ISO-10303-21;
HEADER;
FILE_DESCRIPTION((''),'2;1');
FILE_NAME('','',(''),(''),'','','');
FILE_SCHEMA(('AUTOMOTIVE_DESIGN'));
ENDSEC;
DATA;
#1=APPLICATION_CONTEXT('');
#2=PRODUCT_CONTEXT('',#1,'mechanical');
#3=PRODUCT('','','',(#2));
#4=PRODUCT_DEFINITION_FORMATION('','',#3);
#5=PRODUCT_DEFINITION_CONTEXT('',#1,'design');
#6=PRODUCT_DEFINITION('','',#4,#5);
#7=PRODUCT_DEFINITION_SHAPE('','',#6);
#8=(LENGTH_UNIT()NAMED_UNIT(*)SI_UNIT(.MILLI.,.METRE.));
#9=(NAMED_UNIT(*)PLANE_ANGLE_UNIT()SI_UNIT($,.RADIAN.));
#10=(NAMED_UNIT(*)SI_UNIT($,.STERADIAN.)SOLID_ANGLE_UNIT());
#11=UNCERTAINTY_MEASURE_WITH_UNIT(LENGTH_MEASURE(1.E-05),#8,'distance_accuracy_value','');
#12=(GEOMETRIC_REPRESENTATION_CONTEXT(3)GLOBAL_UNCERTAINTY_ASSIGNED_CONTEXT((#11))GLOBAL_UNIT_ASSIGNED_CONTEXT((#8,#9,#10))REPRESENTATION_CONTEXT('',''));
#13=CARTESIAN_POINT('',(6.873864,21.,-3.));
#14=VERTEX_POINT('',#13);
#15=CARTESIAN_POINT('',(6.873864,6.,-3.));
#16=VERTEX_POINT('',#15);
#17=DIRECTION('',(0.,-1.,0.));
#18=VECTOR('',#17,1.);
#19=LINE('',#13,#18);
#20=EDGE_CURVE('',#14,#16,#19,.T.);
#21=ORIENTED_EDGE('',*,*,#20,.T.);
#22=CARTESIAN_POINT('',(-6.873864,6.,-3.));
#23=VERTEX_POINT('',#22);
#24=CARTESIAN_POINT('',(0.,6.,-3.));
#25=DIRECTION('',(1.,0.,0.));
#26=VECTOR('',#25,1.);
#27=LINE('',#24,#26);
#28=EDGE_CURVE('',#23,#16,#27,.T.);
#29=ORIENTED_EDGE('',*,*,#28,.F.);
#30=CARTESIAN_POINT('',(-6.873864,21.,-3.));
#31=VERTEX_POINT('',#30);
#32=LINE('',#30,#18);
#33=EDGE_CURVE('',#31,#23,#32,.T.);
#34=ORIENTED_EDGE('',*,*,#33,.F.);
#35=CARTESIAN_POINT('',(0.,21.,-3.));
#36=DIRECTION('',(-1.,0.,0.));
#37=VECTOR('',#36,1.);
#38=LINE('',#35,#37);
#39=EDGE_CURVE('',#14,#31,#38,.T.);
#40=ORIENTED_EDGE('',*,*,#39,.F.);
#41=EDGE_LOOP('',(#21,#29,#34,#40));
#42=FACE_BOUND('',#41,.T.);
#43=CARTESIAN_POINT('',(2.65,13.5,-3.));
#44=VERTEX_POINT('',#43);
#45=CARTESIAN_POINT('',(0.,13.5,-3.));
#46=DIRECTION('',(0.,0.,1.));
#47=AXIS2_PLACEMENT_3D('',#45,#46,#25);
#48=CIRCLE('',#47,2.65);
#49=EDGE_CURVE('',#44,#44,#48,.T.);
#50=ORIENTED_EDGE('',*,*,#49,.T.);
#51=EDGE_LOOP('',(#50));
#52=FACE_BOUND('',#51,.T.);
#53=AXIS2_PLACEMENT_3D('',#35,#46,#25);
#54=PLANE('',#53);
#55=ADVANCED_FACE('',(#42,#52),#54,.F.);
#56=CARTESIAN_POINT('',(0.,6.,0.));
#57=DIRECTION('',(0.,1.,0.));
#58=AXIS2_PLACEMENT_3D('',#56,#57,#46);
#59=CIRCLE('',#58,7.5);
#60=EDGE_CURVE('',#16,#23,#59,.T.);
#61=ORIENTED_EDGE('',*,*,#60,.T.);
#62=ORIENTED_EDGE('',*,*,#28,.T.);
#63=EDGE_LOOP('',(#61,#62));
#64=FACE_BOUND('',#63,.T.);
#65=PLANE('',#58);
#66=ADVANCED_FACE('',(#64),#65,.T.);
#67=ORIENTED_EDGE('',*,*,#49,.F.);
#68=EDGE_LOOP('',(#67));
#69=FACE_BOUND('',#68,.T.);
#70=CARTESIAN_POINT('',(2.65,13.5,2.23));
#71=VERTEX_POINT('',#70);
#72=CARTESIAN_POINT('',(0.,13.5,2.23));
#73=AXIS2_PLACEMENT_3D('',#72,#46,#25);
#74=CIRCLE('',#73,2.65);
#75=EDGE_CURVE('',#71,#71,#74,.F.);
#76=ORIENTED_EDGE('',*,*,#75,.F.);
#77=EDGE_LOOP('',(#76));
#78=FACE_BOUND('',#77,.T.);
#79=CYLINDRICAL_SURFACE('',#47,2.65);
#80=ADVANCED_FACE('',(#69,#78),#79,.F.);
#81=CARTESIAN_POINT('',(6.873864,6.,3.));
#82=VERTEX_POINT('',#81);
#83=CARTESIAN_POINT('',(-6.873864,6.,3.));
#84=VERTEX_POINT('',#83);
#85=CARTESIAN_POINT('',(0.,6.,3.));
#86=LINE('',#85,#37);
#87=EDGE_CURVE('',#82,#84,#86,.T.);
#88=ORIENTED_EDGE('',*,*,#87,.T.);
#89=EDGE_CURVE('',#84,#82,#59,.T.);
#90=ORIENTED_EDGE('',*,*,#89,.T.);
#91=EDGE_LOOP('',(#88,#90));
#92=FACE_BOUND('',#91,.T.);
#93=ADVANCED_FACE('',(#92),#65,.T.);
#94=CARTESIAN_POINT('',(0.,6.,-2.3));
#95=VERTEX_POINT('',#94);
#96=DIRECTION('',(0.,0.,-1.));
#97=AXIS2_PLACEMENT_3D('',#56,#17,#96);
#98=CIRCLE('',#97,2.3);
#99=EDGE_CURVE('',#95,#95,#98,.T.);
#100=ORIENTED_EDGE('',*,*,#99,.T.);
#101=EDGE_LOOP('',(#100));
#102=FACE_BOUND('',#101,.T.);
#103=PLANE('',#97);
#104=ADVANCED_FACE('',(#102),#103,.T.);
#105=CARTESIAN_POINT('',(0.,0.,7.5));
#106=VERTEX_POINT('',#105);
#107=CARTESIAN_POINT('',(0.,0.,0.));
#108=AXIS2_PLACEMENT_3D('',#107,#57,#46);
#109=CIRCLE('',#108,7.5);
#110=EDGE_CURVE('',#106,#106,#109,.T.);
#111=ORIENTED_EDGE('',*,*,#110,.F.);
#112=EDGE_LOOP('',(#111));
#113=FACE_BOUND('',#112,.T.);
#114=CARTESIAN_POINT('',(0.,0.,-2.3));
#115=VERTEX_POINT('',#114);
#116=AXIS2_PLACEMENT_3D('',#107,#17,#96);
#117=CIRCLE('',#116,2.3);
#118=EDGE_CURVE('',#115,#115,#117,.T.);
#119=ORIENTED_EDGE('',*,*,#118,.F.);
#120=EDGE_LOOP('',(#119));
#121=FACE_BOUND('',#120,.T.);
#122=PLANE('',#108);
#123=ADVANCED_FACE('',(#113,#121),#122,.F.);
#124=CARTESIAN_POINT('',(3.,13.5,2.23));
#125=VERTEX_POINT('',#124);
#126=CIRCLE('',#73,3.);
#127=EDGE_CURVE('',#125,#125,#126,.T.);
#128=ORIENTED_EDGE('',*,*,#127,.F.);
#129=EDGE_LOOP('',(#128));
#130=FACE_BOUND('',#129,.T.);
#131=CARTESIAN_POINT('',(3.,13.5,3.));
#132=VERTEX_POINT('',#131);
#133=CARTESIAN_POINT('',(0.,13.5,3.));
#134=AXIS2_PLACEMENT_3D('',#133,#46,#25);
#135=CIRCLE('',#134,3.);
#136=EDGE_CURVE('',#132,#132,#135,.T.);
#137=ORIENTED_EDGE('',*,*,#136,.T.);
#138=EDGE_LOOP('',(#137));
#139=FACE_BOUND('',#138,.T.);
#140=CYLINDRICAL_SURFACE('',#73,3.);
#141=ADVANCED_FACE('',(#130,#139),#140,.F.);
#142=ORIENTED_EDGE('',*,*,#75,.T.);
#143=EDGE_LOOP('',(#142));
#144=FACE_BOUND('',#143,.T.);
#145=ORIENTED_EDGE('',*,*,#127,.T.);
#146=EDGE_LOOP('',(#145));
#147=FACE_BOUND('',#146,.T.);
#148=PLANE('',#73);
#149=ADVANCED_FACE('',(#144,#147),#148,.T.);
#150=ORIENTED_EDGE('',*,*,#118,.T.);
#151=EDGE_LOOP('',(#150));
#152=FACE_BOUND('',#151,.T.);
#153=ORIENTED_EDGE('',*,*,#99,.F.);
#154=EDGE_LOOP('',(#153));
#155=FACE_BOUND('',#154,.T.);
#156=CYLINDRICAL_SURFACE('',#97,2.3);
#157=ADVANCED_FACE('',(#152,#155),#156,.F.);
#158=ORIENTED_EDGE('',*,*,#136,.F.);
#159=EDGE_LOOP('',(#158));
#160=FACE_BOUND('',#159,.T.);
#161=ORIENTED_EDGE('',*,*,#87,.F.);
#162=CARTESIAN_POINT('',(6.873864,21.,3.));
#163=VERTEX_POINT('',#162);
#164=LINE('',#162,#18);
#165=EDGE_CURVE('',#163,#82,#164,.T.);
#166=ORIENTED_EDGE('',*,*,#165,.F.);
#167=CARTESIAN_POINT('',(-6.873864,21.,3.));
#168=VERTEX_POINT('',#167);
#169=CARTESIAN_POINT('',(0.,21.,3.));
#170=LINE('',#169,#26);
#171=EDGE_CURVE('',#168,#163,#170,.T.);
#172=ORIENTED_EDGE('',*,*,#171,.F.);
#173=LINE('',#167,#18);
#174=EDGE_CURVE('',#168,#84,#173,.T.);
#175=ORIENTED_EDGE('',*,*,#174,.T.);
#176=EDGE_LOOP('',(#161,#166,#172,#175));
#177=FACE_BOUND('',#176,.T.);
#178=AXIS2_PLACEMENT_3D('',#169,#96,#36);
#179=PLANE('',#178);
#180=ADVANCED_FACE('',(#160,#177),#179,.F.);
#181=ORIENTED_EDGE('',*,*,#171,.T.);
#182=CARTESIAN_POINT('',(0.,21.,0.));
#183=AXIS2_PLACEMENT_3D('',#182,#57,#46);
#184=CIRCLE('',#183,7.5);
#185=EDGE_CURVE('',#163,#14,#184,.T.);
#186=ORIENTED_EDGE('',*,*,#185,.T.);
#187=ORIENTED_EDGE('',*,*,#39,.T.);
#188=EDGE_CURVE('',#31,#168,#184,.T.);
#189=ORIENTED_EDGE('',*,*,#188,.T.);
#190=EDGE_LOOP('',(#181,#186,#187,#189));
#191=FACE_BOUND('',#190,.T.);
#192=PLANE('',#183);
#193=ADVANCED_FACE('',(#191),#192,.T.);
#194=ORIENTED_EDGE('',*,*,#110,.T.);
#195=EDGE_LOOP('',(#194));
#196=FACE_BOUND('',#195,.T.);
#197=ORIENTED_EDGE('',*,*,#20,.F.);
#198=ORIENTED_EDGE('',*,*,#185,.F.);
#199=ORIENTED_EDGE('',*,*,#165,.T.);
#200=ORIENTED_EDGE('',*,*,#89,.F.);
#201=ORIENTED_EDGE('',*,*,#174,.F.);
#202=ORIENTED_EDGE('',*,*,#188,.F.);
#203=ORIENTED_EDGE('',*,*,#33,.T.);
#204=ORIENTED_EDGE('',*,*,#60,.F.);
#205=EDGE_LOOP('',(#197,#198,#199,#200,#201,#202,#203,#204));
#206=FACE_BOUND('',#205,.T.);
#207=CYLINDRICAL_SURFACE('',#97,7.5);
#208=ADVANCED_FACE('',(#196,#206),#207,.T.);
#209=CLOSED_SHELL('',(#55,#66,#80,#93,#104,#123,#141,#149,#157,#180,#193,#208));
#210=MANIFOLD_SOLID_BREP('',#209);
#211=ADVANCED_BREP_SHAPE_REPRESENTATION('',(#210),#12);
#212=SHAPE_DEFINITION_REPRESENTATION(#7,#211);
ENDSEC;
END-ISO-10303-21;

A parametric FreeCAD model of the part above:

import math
import FreeCAD as App
import Part
import Sketcher

doc = App.newDocument("Part")
body = doc.addObject("PartDesign::Body", "Body")

# Sketch on XZ plane
sketch1 = body.newObject("Sketcher::SketchObject", "Sketch")
sketch1.AttachmentSupport = (doc.getObject("XZ_Plane"), [""])
sketch1.MapMode = "FlatFace"
sketch1.addGeometry(Part.Circle(App.Vector(0, 0, 0), App.Vector(0, 0, 1), 8), False)
sketch1.addConstraint(Sketcher.Constraint("Coincident", 0, 3, -1, 1))
sketch1.addConstraint(Sketcher.Constraint("Diameter", 0, 15.0))
pad1 = body.newObject("PartDesign::Pad", "Pad")
pad1.Profile = sketch1
pad1.Length = 6
pad1.Reversed = True

# Sketch on XZ plane
sketch2 = body.newObject("Sketcher::SketchObject", "Sketch001")
sketch2.AttachmentSupport = (doc.getObject("XZ_Plane"), [""])
sketch2.MapMode = "FlatFace"
sketch2.addGeometry(Part.ArcOfCircle(Part.Circle(App.Vector(0, 0, 0), App.Vector(0, 0, 1), 7.5), math.radians(-24), math.radians(0)), False)
sketch2.addGeometry(Part.LineSegment(App.Vector(6.9, -3, 0), App.Vector(-6.9, -3, 0)), False)
sketch2.addGeometry(Part.ArcOfCircle(Part.Circle(App.Vector(0, 0, 0), App.Vector(0, 0, 1), 7.5), math.radians(156), math.radians(204)), False)
sketch2.addGeometry(Part.LineSegment(App.Vector(-6.9, 3, 0), App.Vector(6.9, 3, 0)), False)
sketch2.addGeometry(Part.ArcOfCircle(Part.Circle(App.Vector(0, 0, 0), App.Vector(0, 0, 1), 7.5), math.radians(0), math.radians(24)), False)
sketch2.addConstraint(Sketcher.Constraint("Coincident", 0, 1, 1, 1))
sketch2.addConstraint(Sketcher.Constraint("Coincident", 1, 2, 2, 2))
sketch2.addConstraint(Sketcher.Constraint("Coincident", 2, 1, 3, 1))
sketch2.addConstraint(Sketcher.Constraint("Coincident", 3, 2, 4, 2))
sketch2.addConstraint(Sketcher.Constraint("Tangent", 4, 1, 0, 2))
sketch2.addConstraint(Sketcher.Constraint("Horizontal", 1))
sketch2.addConstraint(Sketcher.Constraint("Horizontal", 3))
sketch2.addConstraint(Sketcher.Constraint("Coincident", 0, 3, -1, 1))
sketch2.addConstraint(Sketcher.Constraint("Coincident", 2, 3, -1, 1))
sketch2.addConstraint(Sketcher.Constraint("Equal", 0, 2))
sketch2.addConstraint(Sketcher.Constraint("Equal", 2, 4))
sketch2.addConstraint(Sketcher.Constraint("PointOnObject", 4, 1, -1))
sketch2.addConstraint(Sketcher.Constraint("Vertical", 1, 2, 2, 1))
sketch2.addConstraint(Sketcher.Constraint("Radius", 0, 7.5))
sketch2.addConstraint(Sketcher.Constraint("DistanceY", 0, 1, -1, 1, 3.0))
pad2 = body.newObject("PartDesign::Pad", "Pad001")
pad2.Profile = sketch2
pad2.Length = 21
pad2.Reversed = True

# Sketch on XY plane
sketch3 = body.newObject("Sketcher::SketchObject", "Sketch002")
sketch3.AttachmentSupport = (doc.getObject("XY_Plane"), [""])
sketch3.MapMode = "FlatFace"
sketch3.AttachmentOffset = App.Placement(App.Vector(0, 0, 3), App.Rotation())
sketch3.addGeometry(Part.Circle(App.Vector(0, 13.5, 0), App.Vector(0, 0, 1), 2.6), False)
sketch3.addConstraint(Sketcher.Constraint("PointOnObject", 0, 3, -2))
sketch3.addConstraint(Sketcher.Constraint("Diameter", 0, 5.3))
sketch3.addConstraint(Sketcher.Constraint("DistanceY", -1, 1, 0, 3, 13.5))
pocket1 = body.newObject("PartDesign::Pocket", "Pocket")
pocket1.Profile = sketch3
pocket1.Length = 6

# Sketch on XY plane
sketch4 = body.newObject("Sketcher::SketchObject", "Sketch003")
sketch4.AttachmentSupport = (doc.getObject("XY_Plane"), [""])
sketch4.MapMode = "FlatFace"
sketch4.AttachmentOffset = App.Placement(App.Vector(0, 0, 3), App.Rotation())
sketch4.addGeometry(Part.Circle(App.Vector(0, 13.5, 0), App.Vector(0, 0, 1), 3), False)
sketch4.addConstraint(Sketcher.Constraint("PointOnObject", 0, 3, -2))
sketch4.addConstraint(Sketcher.Constraint("Diameter", 0, 6.0))
sketch4.addConstraint(Sketcher.Constraint("DistanceY", -1, 1, 0, 3, 13.5))
pocket2 = body.newObject("PartDesign::Pocket", "Pocket001")
pocket2.Profile = sketch4
pocket2.Length = 0.77

# Sketch on XZ plane
sketch5 = body.newObject("Sketcher::SketchObject", "Sketch004")
sketch5.AttachmentSupport = (doc.getObject("XZ_Plane"), [""])
sketch5.MapMode = "FlatFace"
sketch5.addGeometry(Part.Circle(App.Vector(0, 0, 0), App.Vector(0, 0, 1), 2.3), False)
sketch5.addConstraint(Sketcher.Constraint("Coincident", 0, 3, -1, 1))
sketch5.addConstraint(Sketcher.Constraint("Diameter", 0, 4.6))
pocket3 = body.newObject("PartDesign::Pocket", "Pocket002")
pocket3.Profile = sketch5
pocket3.Length = 6

doc.recompute()
